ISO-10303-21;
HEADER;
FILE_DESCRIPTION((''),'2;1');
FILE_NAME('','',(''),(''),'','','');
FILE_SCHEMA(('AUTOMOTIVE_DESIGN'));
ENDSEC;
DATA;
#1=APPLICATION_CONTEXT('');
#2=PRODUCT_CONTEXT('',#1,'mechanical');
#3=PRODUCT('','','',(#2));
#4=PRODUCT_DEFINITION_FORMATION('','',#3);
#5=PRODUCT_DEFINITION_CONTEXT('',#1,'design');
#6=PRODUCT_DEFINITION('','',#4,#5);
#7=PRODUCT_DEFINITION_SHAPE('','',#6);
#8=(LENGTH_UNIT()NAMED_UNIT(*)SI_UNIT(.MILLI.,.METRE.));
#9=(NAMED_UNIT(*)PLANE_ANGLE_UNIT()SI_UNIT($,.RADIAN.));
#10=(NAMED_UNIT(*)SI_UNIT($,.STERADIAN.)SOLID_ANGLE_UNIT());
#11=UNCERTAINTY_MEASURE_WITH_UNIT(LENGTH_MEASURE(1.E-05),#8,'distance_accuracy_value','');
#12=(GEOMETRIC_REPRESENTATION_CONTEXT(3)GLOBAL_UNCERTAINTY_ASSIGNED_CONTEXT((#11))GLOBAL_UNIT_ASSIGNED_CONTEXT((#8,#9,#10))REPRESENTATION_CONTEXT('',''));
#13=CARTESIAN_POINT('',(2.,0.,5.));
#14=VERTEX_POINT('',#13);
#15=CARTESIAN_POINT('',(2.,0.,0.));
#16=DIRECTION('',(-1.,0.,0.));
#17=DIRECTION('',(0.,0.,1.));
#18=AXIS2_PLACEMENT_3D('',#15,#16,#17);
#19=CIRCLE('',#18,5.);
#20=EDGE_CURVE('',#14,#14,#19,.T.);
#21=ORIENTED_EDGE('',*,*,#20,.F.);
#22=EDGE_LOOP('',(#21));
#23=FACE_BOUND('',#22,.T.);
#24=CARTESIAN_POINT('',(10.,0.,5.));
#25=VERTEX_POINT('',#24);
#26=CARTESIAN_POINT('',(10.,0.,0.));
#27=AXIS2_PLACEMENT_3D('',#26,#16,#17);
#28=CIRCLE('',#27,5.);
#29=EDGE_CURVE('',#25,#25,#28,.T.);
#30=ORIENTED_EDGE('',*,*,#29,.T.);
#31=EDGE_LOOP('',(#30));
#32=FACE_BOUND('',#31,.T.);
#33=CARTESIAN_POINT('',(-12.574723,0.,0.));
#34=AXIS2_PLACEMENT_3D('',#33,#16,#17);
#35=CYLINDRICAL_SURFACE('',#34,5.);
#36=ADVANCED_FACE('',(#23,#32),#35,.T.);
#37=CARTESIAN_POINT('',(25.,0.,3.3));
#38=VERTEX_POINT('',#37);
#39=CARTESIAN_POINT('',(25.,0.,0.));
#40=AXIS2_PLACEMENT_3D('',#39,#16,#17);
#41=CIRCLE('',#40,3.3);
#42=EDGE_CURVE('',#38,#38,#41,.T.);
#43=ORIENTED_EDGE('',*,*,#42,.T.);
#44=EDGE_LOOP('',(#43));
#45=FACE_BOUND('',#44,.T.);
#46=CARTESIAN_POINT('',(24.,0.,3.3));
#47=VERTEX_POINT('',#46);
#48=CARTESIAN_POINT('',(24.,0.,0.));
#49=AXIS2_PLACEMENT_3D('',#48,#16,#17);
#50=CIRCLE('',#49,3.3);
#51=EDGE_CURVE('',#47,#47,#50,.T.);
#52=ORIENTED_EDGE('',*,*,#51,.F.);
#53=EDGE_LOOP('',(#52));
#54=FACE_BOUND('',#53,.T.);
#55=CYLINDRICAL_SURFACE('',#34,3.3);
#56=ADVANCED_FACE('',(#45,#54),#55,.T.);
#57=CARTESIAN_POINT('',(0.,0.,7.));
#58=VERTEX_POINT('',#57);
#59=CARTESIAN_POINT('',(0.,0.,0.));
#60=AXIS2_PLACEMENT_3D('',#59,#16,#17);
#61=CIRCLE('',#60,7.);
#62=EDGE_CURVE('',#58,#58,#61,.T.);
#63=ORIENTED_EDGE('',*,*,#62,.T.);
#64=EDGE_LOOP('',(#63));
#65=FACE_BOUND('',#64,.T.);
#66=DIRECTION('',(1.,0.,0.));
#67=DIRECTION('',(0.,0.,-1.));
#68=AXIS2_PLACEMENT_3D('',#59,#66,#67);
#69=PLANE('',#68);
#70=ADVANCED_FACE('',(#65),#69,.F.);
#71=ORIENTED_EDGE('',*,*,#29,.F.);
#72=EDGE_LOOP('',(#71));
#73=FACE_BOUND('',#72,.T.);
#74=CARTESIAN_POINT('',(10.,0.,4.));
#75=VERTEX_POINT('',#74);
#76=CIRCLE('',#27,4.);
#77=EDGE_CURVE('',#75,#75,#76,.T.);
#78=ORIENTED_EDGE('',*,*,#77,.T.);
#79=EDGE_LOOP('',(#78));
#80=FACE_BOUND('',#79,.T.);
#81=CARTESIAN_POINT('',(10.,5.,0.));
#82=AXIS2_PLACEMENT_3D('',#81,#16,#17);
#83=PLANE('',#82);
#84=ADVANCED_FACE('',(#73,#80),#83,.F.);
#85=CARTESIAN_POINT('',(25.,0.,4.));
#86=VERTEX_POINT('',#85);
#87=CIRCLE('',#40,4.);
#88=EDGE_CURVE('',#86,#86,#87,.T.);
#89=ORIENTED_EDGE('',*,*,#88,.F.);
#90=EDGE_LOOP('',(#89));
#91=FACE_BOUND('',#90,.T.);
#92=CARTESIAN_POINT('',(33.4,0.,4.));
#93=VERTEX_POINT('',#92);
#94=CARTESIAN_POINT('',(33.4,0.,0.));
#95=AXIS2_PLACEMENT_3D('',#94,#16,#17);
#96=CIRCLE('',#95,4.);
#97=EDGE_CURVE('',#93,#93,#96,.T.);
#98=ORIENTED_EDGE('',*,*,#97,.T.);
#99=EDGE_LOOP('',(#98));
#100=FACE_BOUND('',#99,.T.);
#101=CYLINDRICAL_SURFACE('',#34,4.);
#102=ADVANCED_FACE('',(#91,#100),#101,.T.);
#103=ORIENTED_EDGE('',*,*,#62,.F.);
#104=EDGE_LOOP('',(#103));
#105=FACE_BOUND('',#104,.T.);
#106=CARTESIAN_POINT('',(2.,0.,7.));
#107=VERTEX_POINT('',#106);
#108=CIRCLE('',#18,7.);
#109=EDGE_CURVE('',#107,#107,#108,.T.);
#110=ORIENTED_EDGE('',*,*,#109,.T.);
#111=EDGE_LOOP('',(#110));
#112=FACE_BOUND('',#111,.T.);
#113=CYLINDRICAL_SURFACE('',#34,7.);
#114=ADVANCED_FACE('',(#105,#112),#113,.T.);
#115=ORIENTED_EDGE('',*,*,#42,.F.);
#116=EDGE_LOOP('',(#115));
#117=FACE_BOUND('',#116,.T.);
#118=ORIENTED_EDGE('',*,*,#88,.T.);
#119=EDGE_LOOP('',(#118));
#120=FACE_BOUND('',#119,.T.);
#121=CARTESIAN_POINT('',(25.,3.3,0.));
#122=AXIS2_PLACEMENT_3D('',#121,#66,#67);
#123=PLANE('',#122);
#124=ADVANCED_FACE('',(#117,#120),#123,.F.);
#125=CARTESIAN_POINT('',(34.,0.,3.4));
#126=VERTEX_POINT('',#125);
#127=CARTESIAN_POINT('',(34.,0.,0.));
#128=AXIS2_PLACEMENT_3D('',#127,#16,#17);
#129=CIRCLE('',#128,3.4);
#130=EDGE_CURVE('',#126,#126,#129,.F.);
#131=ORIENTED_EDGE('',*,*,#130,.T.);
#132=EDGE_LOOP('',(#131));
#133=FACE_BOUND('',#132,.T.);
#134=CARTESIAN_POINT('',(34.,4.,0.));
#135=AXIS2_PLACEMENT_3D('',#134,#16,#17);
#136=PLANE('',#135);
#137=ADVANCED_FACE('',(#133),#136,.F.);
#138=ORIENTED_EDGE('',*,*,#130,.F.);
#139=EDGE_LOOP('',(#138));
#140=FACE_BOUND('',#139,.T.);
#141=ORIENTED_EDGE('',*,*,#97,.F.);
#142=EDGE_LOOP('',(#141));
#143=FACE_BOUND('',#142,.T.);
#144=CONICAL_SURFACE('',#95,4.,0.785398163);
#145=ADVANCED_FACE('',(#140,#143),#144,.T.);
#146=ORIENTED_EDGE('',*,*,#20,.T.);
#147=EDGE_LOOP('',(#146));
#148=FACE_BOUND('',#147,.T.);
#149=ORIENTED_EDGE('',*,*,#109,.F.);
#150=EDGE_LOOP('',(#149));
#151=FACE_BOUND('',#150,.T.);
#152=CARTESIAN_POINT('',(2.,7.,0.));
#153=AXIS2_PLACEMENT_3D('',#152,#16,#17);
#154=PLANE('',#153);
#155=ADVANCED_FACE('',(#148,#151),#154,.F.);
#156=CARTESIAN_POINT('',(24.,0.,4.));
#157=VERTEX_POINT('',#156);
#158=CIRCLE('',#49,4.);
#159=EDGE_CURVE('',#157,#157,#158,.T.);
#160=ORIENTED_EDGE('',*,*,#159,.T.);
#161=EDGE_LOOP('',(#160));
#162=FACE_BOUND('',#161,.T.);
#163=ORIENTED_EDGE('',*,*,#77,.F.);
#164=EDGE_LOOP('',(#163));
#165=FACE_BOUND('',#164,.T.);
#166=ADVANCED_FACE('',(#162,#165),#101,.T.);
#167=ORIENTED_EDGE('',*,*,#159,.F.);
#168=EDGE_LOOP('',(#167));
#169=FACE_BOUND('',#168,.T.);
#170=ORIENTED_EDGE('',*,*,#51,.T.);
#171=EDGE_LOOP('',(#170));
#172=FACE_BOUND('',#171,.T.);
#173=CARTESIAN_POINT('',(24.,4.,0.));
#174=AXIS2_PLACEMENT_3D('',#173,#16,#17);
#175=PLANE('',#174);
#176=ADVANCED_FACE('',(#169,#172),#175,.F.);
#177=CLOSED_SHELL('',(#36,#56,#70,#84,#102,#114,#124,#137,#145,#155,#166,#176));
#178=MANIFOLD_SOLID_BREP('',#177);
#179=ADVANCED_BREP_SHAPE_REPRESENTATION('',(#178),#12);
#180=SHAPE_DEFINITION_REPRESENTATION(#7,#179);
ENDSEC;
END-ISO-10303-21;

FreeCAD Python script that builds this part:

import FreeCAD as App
import Part
import Sketcher


def edges_at(feature, points):
    """Names of the edges that pass closest to the given points."""
    edges = feature.Shape.Edges
    near = lambda p: min(range(len(edges)), key=lambda i: edges[i].distToShape(Part.Vertex(*p))[0])
    return sorted({f"Edge{near(p) + 1}" for p in points})


def add_polygon(sketch, points):
    """Adds a closed chain of lines whose ends are joined by coincident constraints."""
    first, n = sketch.GeometryCount, len(points)
    for a, b in zip(points, points[1:] + points[:1]):
        sketch.addGeometry(Part.LineSegment(App.Vector(*a, 0), App.Vector(*b, 0)), False)
    for i in range(n):
        sketch.addConstraint(Sketcher.Constraint("Coincident", first + i, 2, first + (i + 1) % n, 1))

doc = App.newDocument("Part")
body = doc.addObject("PartDesign::Body", "Body")

# Sketch on XY plane
sketch1 = body.newObject("Sketcher::SketchObject", "Sketch")
sketch1.AttachmentSupport = (doc.getObject("XY_Plane"), [""])
sketch1.MapMode = "FlatFace"
add_polygon(sketch1, [(0, 7), (0, 0), (34, 0), (34, 4), (25, 4), (25, 3.3), (24, 3.3), (24, 4), (10, 4), (10, 5), (2, 5), (2, 7)])  # lines 0-11
sketch1.addConstraint([
    Sketcher.Constraint("Vertical", 0),
    Sketcher.Constraint("Horizontal", 1),
    Sketcher.Constraint("Vertical", 2),
    Sketcher.Constraint("Horizontal", 3),
    Sketcher.Constraint("Vertical", 4),
    Sketcher.Constraint("Horizontal", 5),
    Sketcher.Constraint("Vertical", 6),
    Sketcher.Constraint("Horizontal", 7),
    Sketcher.Constraint("Vertical", 8),
    Sketcher.Constraint("Horizontal", 9),
    Sketcher.Constraint("Vertical", 10),
    Sketcher.Constraint("Horizontal", 11),
    Sketcher.Constraint("Coincident", 0, 2, -1, 1),
    Sketcher.Constraint("Horizontal", 3, 2, 6, 2),
    Sketcher.Constraint("Equal", 5, 8),
    Sketcher.Constraint("Equal", 11, 10),
    Sketcher.Constraint("DistanceX", 1, 1, 1, 2, 34.0),
    Sketcher.Constraint("DistanceX", 3, 2, 3, 1, 9.0),
    Sketcher.Constraint("DistanceX", 5, 2, 5, 1, 1.0),
    Sketcher.Constraint("DistanceX", 7, 2, 7, 1, 14.0),
    Sketcher.Constraint("DistanceX", 9, 2, 9, 1, 8.0),
    Sketcher.Constraint("DistanceY", 0, 2, 0, 1, 7.0),
    Sketcher.Constraint("DistanceY", 4, 2, 4, 1, 0.7),
])
revolution = body.newObject("PartDesign::Revolution", "Revolution")
revolution.Profile = sketch1
revolution.ReferenceAxis = (sketch1, ["H_Axis"])
revolution.Angle = 360
doc.recompute()

chamfer = body.newObject("PartDesign::Chamfer", "Chamfer")
chamfer.Base = (revolution, edges_at(revolution, [(34, 0, -4)]))
chamfer.Size = 0.6

doc.recompute()
